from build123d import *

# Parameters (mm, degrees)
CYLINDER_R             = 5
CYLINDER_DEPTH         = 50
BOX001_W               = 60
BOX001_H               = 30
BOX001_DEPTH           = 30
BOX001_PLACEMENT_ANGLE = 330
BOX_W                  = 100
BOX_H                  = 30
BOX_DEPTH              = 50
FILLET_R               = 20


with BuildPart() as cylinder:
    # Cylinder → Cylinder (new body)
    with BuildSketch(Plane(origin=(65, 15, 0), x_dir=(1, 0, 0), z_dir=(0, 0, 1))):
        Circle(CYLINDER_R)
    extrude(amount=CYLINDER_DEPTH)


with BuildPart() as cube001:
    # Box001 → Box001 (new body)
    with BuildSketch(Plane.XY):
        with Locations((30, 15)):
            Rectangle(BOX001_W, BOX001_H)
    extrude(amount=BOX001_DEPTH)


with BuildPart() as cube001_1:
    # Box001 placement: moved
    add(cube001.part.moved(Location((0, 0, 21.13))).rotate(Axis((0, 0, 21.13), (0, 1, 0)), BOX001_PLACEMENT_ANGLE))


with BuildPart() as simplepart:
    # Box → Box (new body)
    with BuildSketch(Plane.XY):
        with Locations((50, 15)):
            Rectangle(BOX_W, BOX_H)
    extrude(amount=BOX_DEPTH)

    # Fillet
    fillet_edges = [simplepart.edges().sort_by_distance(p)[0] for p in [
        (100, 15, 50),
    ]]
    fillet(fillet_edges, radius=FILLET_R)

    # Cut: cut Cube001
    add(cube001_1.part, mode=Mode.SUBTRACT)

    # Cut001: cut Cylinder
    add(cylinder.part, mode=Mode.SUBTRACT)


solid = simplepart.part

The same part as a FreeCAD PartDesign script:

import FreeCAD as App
import Part
import Sketcher
Q = App.Units.Quantity


def edges_at(feature, points):
    """Names of the edges that pass closest to the given points."""
    edges = feature.Shape.Edges
    near = lambda p: min(range(len(edges)), key=lambda i: edges[i].distToShape(Part.Vertex(*p))[0])
    return sorted({f"Edge{near(p) + 1}" for p in points})

doc = App.newDocument("Part")
body = doc.addObject("PartDesign::Body", "Body")

# Sketch on XY plane
sketch1 = doc.addObject("Sketcher::SketchObject", "Sketch")
body.addObject(sketch1)
sketch1.AttachmentSupport = (doc.XY_Plane, [""])
sketch1.MapMode = "FlatFace"
sketch1.addGeometry(Part.Circle(App.Vector(65, 15, 0), App.Vector(0, 0, 1), 5), False)
sketch1.addConstraint([
    Sketcher.Constraint("Diameter", 0, Q("10 mm")),
    Sketcher.Constraint("DistanceX", -1, 1, 0, 3, Q("65 mm")),
    Sketcher.Constraint("DistanceY", -1, 1, 0, 3, Q("15 mm")),
])
pad1 = doc.addObject("PartDesign::Pad", "Pad")
body.addObject(pad1)
pad1.Profile = sketch1
pad1.Length = 50
body2 = doc.addObject("PartDesign::Body", "Body001")

# Sketch on XY plane
sketch2 = doc.addObject("Sketcher::SketchObject", "Sketch001")
body2.addObject(sketch2)
sketch2.AttachmentSupport = (doc.getObject("XY_Plane001"), [""])
sketch2.MapMode = "FlatFace"
sketch2.addGeometry([
    Part.LineSegment(App.Vector(0, 30, 0), App.Vector(0, 0, 0)),
    Part.LineSegment(App.Vector(0, 0, 0), App.Vector(60, 0, 0)),
    Part.LineSegment(App.Vector(60, 0, 0), App.Vector(60, 30, 0)),
    Part.LineSegment(App.Vector(60, 30, 0), App.Vector(0, 30, 0)),
], False)
sketch2.addConstraint([
    Sketcher.Constraint("Coincident", 0, 2, 1, 1),
    Sketcher.Constraint("Coincident", 1, 2, 2, 1),
    Sketcher.Constraint("Coincident", 2, 2, 3, 1),
    Sketcher.Constraint("Coincident", 3, 2, 0, 1),
    Sketcher.Constraint("Vertical", 0),
    Sketcher.Constraint("Horizontal", 1),
    Sketcher.Constraint("Vertical", 2),
    Sketcher.Constraint("Horizontal", 3),
    Sketcher.Constraint("Coincident", 0, 2, -1, 1),
    Sketcher.Constraint("DistanceX", 1, 1, 1, 2, Q("60 mm")),
    Sketcher.Constraint("DistanceY", 0, 2, 0, 1, Q("30 mm")),
])
pad2 = doc.addObject("PartDesign::Pad", "Pad001")
body2.addObject(pad2)
pad2.Profile = sketch2
pad2.Length = 30
body3 = doc.addObject("PartDesign::Body", "Body002")
doc.recompute()

body2.Placement = App.Placement(App.Vector(0, 0, 21.13), App.Rotation(App.Vector(0, 1, 0), 330))
boolean = doc.addObject("PartDesign::Boolean", "Boolean")
body3.addObject(boolean)
boolean.Type = "Fuse"
boolean.addObjects([body2])
body4 = doc.addObject("PartDesign::Body", "Body003")

# Sketch on XY plane
sketch3 = doc.addObject("Sketcher::SketchObject", "Sketch002")
body4.addObject(sketch3)
sketch3.AttachmentSupport = (doc.getObject("XY_Plane003"), [""])
sketch3.MapMode = "FlatFace"
sketch3.addGeometry([
    Part.LineSegment(App.Vector(0, 30, 0), App.Vector(0, 0, 0)),
    Part.LineSegment(App.Vector(0, 0, 0), App.Vector(100, 0, 0)),
    Part.LineSegment(App.Vector(100, 0, 0), App.Vector(100, 30, 0)),
    Part.LineSegment(App.Vector(100, 30, 0), App.Vector(0, 30, 0)),
], False)
sketch3.addConstraint([
    Sketcher.Constraint("Coincident", 0, 2, 1, 1),
    Sketcher.Constraint("Coincident", 1, 2, 2, 1),
    Sketcher.Constraint("Coincident", 2, 2, 3, 1),
    Sketcher.Constraint("Coincident", 3, 2, 0, 1),
    Sketcher.Constraint("Vertical", 0),
    Sketcher.Constraint("Horizontal", 1),
    Sketcher.Constraint("Vertical", 2),
    Sketcher.Constraint("Horizontal", 3),
    Sketcher.Constraint("Coincident", 0, 2, -1, 1),
    Sketcher.Constraint("DistanceX", 1, 1, 1, 2, Q("100 mm")),
    Sketcher.Constraint("DistanceY", 0, 2, 0, 1, Q("30 mm")),
])
pad3 = doc.addObject("PartDesign::Pad", "Pad002")
body4.addObject(pad3)
pad3.Profile = sketch3
pad3.Length = 50
doc.recompute()

fillet = doc.addObject("PartDesign::Fillet", "Fillet")
body4.addObject(fillet)
fillet.Base = (pad3, edges_at(pad3, [(100, 15, 50)]))
fillet.Radius = 20
doc.recompute()

boolean2 = doc.addObject("PartDesign::Boolean", "Boolean001")
body4.addObject(boolean2)
boolean2.Type = "Cut"
boolean2.addObjects([body3])
doc.recompute()

boolean3 = doc.addObject("PartDesign::Boolean", "Boolean002")
body4.addObject(boolean3)
boolean3.Type = "Cut"
boolean3.addObjects([body])

doc.recompute()
